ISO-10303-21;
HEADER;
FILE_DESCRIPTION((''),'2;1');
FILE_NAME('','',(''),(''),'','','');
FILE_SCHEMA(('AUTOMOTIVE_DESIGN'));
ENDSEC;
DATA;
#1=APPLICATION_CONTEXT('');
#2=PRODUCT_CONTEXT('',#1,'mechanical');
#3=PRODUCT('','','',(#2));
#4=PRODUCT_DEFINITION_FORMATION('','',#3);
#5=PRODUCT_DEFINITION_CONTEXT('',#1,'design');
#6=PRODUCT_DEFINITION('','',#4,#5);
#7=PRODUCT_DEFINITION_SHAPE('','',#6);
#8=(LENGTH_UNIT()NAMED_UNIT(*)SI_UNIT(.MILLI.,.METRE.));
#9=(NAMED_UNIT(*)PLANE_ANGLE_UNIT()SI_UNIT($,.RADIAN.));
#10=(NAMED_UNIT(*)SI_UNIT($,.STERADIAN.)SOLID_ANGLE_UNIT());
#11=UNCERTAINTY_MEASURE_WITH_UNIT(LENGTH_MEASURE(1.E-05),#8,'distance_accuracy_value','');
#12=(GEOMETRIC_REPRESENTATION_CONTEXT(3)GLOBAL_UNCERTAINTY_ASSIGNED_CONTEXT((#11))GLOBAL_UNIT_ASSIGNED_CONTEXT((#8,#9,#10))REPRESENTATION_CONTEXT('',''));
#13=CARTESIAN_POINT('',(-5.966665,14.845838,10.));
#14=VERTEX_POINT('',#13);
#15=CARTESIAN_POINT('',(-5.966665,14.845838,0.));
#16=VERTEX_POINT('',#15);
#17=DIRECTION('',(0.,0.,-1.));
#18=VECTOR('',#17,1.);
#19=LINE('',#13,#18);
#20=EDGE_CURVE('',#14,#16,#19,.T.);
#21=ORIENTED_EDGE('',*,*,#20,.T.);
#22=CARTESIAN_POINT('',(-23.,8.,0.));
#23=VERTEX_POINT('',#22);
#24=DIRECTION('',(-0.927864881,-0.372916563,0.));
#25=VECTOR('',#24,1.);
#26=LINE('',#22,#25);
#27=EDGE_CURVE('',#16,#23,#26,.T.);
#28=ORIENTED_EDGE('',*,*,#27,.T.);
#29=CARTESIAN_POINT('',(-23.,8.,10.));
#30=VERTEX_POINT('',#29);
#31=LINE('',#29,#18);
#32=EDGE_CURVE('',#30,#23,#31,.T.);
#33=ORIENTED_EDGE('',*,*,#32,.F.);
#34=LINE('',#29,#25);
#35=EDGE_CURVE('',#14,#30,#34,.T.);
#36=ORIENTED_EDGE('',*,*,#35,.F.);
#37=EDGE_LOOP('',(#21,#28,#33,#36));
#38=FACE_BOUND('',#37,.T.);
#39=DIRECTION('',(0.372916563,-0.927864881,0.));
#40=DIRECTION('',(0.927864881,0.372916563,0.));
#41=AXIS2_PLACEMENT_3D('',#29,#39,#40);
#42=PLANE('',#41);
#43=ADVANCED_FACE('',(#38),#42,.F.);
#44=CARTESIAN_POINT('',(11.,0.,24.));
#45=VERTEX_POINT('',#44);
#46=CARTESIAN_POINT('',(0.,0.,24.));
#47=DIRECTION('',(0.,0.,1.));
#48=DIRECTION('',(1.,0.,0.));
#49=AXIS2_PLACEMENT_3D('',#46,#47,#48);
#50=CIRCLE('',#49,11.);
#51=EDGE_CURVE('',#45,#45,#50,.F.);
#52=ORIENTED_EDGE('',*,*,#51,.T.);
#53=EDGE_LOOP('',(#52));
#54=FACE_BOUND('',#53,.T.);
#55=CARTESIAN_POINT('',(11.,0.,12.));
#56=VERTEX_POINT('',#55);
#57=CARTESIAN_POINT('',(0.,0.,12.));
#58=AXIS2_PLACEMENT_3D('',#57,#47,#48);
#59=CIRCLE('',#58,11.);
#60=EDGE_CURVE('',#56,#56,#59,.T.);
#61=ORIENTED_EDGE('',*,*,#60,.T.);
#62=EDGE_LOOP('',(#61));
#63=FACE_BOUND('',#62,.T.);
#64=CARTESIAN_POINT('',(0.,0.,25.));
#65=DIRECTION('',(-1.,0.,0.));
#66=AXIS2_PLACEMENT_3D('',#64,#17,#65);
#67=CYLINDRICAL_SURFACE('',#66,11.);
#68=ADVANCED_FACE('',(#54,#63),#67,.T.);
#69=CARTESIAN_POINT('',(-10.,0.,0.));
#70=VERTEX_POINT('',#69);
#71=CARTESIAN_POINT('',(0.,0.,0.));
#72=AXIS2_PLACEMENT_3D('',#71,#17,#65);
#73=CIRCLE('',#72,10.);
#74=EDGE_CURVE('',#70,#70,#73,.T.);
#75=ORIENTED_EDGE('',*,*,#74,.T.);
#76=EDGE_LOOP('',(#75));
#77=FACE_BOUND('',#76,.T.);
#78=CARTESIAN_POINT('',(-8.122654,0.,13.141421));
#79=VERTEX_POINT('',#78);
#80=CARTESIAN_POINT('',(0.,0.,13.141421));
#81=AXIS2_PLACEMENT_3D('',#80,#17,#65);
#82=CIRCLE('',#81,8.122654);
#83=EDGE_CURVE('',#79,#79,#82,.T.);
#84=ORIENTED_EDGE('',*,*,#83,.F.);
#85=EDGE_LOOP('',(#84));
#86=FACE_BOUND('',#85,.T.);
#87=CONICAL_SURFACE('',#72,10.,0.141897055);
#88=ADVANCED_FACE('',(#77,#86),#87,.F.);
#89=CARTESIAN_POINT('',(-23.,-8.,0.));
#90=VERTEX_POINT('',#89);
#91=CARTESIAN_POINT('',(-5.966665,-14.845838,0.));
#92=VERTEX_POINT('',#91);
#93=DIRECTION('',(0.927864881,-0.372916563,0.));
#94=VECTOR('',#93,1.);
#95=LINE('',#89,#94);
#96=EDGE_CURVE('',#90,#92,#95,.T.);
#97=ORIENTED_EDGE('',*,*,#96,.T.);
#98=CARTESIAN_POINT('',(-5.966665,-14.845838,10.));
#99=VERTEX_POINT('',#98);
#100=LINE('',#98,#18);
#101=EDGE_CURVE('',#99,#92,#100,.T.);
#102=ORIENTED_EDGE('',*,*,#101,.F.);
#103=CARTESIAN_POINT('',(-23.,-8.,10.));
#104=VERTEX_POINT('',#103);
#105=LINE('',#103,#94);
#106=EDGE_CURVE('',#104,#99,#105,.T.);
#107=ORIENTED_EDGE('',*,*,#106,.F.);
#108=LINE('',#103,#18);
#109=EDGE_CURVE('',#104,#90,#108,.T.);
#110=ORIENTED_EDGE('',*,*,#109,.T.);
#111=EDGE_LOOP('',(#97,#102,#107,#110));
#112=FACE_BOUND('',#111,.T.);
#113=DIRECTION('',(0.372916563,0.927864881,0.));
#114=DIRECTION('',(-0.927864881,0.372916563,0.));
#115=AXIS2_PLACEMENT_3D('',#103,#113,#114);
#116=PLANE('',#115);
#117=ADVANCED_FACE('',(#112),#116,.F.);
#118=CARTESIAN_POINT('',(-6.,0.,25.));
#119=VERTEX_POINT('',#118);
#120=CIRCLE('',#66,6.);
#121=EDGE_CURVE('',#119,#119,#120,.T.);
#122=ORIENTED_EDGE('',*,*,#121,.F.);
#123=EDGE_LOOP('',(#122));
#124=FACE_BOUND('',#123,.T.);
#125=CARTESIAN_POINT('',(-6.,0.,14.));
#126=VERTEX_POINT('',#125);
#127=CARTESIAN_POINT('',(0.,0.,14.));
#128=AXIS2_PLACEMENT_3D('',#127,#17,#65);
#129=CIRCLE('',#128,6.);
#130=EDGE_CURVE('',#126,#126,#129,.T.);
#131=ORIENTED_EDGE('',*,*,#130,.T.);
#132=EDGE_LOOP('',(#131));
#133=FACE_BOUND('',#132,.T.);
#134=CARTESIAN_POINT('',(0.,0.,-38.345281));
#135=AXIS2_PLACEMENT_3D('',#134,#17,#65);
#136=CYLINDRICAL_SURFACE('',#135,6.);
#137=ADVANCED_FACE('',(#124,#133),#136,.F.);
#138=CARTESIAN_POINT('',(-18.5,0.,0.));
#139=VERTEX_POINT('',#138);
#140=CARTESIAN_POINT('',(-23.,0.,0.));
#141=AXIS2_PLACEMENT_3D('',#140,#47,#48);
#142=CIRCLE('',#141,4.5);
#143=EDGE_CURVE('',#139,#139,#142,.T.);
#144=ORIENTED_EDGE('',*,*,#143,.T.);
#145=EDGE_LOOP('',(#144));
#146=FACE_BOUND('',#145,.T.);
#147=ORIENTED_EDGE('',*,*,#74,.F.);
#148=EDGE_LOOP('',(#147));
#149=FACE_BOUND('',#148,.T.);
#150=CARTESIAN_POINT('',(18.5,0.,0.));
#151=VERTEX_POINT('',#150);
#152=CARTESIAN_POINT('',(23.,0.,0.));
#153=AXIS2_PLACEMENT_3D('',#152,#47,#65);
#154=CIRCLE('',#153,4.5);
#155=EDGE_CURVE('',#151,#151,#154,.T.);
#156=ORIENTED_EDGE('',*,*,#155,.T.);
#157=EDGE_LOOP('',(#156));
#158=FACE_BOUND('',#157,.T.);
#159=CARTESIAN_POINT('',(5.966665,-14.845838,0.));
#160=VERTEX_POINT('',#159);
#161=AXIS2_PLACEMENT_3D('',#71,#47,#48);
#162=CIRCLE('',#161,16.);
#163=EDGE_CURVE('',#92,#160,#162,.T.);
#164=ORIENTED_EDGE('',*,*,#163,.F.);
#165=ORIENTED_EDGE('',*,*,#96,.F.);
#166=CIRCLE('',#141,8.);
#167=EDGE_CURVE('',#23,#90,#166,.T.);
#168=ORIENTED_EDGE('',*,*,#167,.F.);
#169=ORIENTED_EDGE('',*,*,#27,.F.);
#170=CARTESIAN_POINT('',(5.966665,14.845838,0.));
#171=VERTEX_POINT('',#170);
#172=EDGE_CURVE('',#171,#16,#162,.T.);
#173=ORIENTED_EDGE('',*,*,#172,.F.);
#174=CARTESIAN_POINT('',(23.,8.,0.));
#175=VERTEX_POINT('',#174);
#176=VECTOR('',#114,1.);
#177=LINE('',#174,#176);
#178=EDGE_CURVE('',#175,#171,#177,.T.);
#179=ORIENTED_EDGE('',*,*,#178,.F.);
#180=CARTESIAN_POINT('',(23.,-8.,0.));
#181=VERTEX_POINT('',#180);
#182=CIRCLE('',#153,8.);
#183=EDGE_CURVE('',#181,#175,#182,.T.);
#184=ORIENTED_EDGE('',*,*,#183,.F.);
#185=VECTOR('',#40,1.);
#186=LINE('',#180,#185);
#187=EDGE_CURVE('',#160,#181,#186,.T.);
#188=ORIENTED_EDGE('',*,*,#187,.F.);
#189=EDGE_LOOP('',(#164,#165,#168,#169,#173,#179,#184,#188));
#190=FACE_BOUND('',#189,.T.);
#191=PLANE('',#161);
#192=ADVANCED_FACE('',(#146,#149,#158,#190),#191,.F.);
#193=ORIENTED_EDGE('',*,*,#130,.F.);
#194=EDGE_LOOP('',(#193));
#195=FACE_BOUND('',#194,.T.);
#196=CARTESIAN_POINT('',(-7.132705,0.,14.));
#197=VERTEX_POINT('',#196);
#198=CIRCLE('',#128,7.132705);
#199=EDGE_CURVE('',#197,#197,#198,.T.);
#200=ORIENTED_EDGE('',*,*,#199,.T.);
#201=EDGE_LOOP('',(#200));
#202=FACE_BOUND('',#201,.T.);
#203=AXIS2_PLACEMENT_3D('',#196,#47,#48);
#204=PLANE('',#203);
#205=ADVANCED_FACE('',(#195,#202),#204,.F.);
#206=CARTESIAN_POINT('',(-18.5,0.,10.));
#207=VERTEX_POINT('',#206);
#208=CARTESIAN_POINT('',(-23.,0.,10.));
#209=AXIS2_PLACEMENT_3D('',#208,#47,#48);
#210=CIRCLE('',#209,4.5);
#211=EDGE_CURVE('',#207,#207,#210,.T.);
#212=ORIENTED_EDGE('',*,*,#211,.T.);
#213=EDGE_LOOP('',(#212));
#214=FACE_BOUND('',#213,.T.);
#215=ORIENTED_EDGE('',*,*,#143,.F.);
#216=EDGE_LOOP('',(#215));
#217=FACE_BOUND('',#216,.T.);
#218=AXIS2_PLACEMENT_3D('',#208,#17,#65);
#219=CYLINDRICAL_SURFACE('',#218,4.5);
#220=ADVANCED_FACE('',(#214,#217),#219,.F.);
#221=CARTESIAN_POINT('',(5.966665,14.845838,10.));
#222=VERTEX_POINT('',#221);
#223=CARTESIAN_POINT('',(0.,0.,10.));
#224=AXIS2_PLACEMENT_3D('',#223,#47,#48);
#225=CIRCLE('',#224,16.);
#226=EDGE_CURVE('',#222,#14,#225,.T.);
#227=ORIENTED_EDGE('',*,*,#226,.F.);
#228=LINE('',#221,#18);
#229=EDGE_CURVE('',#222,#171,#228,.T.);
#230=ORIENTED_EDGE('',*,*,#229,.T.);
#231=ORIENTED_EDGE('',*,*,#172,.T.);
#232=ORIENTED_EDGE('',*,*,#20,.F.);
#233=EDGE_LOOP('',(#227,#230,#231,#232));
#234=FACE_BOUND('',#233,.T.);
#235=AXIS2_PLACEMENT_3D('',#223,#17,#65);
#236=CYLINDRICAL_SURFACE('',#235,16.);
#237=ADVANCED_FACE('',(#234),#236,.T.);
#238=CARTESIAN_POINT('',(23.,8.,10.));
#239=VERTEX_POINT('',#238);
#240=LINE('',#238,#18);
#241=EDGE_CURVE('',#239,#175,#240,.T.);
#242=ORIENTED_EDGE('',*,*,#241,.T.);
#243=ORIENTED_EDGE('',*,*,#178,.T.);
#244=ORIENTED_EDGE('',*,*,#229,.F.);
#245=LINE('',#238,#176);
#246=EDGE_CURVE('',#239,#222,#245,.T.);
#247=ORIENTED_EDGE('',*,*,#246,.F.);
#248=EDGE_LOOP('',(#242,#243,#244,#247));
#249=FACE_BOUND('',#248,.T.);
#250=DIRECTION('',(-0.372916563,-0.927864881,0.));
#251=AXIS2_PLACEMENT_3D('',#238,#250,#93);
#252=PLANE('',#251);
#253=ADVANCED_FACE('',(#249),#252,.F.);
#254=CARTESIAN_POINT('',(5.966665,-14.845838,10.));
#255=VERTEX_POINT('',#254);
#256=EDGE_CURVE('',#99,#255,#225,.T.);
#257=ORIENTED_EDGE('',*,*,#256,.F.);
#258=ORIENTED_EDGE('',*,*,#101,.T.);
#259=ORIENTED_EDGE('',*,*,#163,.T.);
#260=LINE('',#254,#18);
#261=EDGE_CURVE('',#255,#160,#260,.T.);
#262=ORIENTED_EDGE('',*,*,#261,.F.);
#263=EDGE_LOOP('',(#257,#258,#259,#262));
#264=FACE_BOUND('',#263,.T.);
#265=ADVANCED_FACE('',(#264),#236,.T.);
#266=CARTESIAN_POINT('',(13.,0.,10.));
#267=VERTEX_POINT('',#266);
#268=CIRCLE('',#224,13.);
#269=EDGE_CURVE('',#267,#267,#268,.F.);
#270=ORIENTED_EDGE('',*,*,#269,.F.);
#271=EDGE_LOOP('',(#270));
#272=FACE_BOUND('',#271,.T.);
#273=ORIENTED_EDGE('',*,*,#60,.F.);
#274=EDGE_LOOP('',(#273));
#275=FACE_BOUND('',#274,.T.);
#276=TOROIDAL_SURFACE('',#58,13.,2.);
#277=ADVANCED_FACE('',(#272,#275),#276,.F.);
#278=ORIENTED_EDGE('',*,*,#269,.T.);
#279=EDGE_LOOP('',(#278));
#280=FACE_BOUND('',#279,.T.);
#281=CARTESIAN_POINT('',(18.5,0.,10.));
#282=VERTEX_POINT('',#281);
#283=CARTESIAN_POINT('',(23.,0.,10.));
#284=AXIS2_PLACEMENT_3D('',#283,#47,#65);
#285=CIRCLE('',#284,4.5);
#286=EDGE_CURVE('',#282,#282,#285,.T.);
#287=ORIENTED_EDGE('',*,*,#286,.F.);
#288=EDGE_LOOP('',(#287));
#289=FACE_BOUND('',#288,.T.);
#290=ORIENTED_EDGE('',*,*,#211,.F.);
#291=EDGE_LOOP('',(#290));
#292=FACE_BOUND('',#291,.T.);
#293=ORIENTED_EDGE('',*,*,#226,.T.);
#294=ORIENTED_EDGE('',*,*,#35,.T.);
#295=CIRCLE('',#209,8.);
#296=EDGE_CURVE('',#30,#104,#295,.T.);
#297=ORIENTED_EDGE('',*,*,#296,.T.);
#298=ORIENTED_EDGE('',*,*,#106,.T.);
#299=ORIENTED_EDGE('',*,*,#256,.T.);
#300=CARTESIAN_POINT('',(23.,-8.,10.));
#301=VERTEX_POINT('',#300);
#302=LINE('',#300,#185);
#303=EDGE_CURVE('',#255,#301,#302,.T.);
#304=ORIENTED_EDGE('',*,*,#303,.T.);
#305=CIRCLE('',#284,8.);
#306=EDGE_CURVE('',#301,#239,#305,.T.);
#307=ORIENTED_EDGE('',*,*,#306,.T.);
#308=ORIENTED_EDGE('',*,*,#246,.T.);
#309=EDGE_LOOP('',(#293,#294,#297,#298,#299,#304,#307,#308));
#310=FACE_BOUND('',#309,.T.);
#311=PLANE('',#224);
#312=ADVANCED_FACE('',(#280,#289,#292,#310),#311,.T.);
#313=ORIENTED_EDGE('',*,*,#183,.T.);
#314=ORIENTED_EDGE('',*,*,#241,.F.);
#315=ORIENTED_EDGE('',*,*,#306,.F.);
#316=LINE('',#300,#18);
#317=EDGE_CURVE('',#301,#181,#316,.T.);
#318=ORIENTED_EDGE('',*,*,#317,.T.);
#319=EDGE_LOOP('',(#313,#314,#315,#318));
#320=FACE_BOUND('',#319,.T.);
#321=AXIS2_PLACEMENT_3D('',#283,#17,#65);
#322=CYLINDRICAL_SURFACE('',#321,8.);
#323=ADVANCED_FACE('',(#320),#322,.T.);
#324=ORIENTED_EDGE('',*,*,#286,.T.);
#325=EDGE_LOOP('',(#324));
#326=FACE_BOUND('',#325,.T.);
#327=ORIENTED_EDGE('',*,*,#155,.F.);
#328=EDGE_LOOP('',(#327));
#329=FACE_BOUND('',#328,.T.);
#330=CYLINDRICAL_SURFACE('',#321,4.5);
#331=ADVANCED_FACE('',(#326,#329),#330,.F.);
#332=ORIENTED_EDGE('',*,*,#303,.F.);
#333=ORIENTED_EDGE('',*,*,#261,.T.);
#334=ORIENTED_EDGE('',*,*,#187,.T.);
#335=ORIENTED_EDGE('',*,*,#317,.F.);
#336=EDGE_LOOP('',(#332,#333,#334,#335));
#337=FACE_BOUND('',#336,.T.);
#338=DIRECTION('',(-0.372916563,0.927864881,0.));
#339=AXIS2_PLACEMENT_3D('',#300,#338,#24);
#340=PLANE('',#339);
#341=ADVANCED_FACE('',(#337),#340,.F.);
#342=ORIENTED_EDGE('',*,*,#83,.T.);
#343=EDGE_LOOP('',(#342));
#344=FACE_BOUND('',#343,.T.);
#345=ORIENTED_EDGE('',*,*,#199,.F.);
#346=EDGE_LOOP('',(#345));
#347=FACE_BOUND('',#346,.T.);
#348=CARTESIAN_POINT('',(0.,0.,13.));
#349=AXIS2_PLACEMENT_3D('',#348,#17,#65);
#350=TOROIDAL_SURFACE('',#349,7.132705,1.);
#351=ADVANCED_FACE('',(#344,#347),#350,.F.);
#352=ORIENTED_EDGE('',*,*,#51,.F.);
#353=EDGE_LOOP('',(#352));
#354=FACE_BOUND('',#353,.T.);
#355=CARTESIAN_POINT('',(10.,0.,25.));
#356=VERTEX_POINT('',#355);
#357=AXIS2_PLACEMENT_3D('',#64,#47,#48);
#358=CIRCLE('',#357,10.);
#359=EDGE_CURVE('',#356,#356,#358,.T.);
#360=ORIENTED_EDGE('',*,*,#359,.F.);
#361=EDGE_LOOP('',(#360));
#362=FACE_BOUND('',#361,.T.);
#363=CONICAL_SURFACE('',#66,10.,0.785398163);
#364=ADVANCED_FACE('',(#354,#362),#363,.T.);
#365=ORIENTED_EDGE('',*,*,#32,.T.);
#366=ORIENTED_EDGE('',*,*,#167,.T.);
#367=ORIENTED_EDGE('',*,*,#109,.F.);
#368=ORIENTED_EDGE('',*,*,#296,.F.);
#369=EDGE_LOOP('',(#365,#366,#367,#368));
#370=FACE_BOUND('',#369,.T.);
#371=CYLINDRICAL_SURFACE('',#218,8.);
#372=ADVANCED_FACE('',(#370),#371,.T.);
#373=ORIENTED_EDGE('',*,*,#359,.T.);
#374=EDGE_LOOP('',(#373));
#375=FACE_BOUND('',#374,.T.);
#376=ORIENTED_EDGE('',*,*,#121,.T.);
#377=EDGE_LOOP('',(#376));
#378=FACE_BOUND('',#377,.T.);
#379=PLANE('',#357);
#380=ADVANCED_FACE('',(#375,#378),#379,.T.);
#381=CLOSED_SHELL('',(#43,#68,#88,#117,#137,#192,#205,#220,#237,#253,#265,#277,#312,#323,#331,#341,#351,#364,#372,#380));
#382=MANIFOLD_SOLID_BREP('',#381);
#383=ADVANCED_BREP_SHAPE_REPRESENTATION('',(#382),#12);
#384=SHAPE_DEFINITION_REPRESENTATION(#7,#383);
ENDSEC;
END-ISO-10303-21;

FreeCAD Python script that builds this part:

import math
import FreeCAD as App
import Part
import Sketcher
from FreeCAD import Vector


def edges_at(feature, points):
    """Names of the edges that pass closest to the given points."""
    edges = feature.Shape.Edges
    near = lambda p: min(range(len(edges)), key=lambda i: edges[i].distToShape(Part.Vertex(*p))[0])
    return sorted({f"Edge{near(p) + 1}" for p in points})

doc = App.newDocument("Part")
body = doc.addObject("PartDesign::Body", "Body")

sketch1 = body.newObject("Sketcher::SketchObject", "Sketch")
sketch1.AttachmentSupport = (doc.getObject("XY_Plane"), [""])
sketch1.MapMode = "FlatFace"
sketch1.addGeometry([
    Part.LineSegment(Vector(-5.966665, 14.845838, 0), Vector(-23, 8, 0)),
    Part.ArcOfCircle(Part.Circle(Vector(-23, 0, 0), Vector(0, 0, 1), 8), math.radians(90), math.radians(270)),
    Part.LineSegment(Vector(-23, -8, 0), Vector(-5.966665, -14.845838, 0)),
    Part.ArcOfCircle(Part.Circle(Vector(0, 0, 0), Vector(0, 0, 1), 16), math.radians(-111.895602), math.radians(-68.104398)),
    Part.LineSegment(Vector(5.966665, -14.845838, 0), Vector(23, -8, 0)),
    Part.ArcOfCircle(Part.Circle(Vector(23, 0, 0), Vector(0, 0, 1), 8), math.radians(-90), math.radians(90)),
    Part.LineSegment(Vector(23, 8, 0), Vector(5.966665, 14.845838, 0)),
    Part.ArcOfCircle(Part.Circle(Vector(0, 0, 0), Vector(0, 0, 1), 16), math.radians(68.104398), math.radians(111.895602)),
    Part.Circle(Vector(23, 0, 0), Vector(0, 0, 1), 4.5),
    Part.Circle(Vector(-23, 0, 0), Vector(0, 0, 1), 4.5),
], False)
sketch1.addConstraint([
    Sketcher.Constraint("Coincident", 0, 2, 1, 1),
    Sketcher.Constraint("Coincident", 1, 2, 2, 1),
    Sketcher.Constraint("Tangent", 2, 2, 3, 1),
    Sketcher.Constraint("Tangent", 3, 2, 4, 1),
    Sketcher.Constraint("Coincident", 4, 2, 5, 1),
    Sketcher.Constraint("Coincident", 5, 2, 6, 1),
    Sketcher.Constraint("Tangent", 6, 2, 7, 1),
    Sketcher.Constraint("Tangent", 7, 2, 0, 1),
    Sketcher.Constraint("Coincident", 3, 3, -1, 1),
    Sketcher.Constraint("Coincident", 7, 3, -1, 1),
    Sketcher.Constraint("Coincident", 8, 3, 5, 3),
    Sketcher.Constraint("Coincident", 9, 3, 1, 3),
    Sketcher.Constraint("Equal", 1, 5),
    Sketcher.Constraint("Equal", 3, 7),
    Sketcher.Constraint("Equal", 8, 9),
    Sketcher.Constraint("Symmetric", 1, 3, 5, 3, -1, 1),
    Sketcher.Constraint("Symmetric", 1, 2, 4, 2, -2),
    Sketcher.Constraint("Parallel", 0, 4),
    Sketcher.Constraint("Parallel", 2, 6),
    Sketcher.Constraint("Vertical", 9, 3, 0, 2),
    Sketcher.Constraint("Diameter", 8, 9.0),
    Sketcher.Constraint("Radius", 1, 8.0),
    Sketcher.Constraint("Radius", 3, 16.0),
    Sketcher.Constraint("DistanceX", 1, 3, -1, 1, 23.0),
])
pad1 = body.newObject("PartDesign::Pad", "Pad")
pad1.Profile = sketch1
pad1.Length = 10

sketch2 = body.newObject("Sketcher::SketchObject", "Sketch001")
sketch2.AttachmentSupport = (doc.getObject("XY_Plane"), [""])
sketch2.MapMode = "FlatFace"
sketch2.addGeometry(Part.Circle(Vector(0, 0, 0), Vector(0, 0, 1), 11), False)
sketch2.addConstraint([
    Sketcher.Constraint("Coincident", 0, 3, -1, 1),
    Sketcher.Constraint("Diameter", 0, 22.0),
])
pad2 = body.newObject("PartDesign::Pad", "Pad001")
pad2.Profile = sketch2
pad2.Length = 25

sketch3 = body.newObject("Sketcher::SketchObject", "Sketch002")
sketch3.AttachmentSupport = (doc.getObject("XZ_Plane"), [""])
sketch3.MapMode = "FlatFace"
sketch3.addGeometry([
    Part.LineSegment(Vector(0, 0, 0), Vector(-10, 0, 0)),
    Part.LineSegment(Vector(-10, 0, 0), Vector(-8.122654, 13.141421, 0)),
    Part.ArcOfCircle(Part.Circle(Vector(-7.132705, 13, 0), Vector(0, 0, 1), 1), math.radians(90), math.radians(171.869898)),
    Part.LineSegment(Vector(-7.132705, 14, 0), Vector(-6, 14, 0)),
    Part.LineSegment(Vector(-6, 14, 0), Vector(-6, 25, 0)),
    Part.LineSegment(Vector(-6, 25, 0), Vector(0, 25, 0)),
    Part.LineSegment(Vector(0, 25, 0), Vector(0, 0, 0)),
], False)
sketch3.addConstraint([
    Sketcher.Constraint("Coincident", 0, 2, 1, 1),
    Sketcher.Constraint("Tangent", 1, 2, 2, 2),
    Sketcher.Constraint("Tangent", 2, 1, 3, 1),
    Sketcher.Constraint("Coincident", 3, 2, 4, 1),
    Sketcher.Constraint("Coincident", 4, 2, 5, 1),
    Sketcher.Constraint("Coincident", 5, 2, 6, 1),
    Sketcher.Constraint("Coincident", 6, 2, 0, 1),
    Sketcher.Constraint("Horizontal", 0),
    Sketcher.Constraint("Horizontal", 3),
    Sketcher.Constraint("Vertical", 4),
    Sketcher.Constraint("Horizontal", 5),
    Sketcher.Constraint("Vertical", 6),
    Sketcher.Constraint("Coincident", 6, 2, -1, 1),
    Sketcher.Constraint("Radius", 2, 1.0),
    Sketcher.Constraint("DistanceX", 0, 2, 0, 1, 10.0),
    Sketcher.Constraint("DistanceX", 5, 1, 5, 2, 6.0),
    Sketcher.Constraint("DistanceY", 4, 1, 4, 2, 11.0),
    Sketcher.Constraint("DistanceY", 6, 2, 6, 1, 25.0),
    Sketcher.Constraint("Distance", 1, 13.27484),
])
groove = body.newObject("PartDesign::Groove", "Groove")
groove.Profile = sketch3
groove.ReferenceAxis = (sketch3, ["V_Axis"])
groove.Angle = 360
doc.recompute()

fillet = body.newObject("PartDesign::Fillet", "Fillet")
fillet.Base = (groove, edges_at(groove, [(-11, 0, 10)]))
fillet.Radius = 2
doc.recompute()

chamfer = body.newObject("PartDesign::Chamfer", "Chamfer")
chamfer.Base = (fillet, edges_at(fillet, [(-11, 0, 25)]))
chamfer.Size = 1

doc.recompute()
